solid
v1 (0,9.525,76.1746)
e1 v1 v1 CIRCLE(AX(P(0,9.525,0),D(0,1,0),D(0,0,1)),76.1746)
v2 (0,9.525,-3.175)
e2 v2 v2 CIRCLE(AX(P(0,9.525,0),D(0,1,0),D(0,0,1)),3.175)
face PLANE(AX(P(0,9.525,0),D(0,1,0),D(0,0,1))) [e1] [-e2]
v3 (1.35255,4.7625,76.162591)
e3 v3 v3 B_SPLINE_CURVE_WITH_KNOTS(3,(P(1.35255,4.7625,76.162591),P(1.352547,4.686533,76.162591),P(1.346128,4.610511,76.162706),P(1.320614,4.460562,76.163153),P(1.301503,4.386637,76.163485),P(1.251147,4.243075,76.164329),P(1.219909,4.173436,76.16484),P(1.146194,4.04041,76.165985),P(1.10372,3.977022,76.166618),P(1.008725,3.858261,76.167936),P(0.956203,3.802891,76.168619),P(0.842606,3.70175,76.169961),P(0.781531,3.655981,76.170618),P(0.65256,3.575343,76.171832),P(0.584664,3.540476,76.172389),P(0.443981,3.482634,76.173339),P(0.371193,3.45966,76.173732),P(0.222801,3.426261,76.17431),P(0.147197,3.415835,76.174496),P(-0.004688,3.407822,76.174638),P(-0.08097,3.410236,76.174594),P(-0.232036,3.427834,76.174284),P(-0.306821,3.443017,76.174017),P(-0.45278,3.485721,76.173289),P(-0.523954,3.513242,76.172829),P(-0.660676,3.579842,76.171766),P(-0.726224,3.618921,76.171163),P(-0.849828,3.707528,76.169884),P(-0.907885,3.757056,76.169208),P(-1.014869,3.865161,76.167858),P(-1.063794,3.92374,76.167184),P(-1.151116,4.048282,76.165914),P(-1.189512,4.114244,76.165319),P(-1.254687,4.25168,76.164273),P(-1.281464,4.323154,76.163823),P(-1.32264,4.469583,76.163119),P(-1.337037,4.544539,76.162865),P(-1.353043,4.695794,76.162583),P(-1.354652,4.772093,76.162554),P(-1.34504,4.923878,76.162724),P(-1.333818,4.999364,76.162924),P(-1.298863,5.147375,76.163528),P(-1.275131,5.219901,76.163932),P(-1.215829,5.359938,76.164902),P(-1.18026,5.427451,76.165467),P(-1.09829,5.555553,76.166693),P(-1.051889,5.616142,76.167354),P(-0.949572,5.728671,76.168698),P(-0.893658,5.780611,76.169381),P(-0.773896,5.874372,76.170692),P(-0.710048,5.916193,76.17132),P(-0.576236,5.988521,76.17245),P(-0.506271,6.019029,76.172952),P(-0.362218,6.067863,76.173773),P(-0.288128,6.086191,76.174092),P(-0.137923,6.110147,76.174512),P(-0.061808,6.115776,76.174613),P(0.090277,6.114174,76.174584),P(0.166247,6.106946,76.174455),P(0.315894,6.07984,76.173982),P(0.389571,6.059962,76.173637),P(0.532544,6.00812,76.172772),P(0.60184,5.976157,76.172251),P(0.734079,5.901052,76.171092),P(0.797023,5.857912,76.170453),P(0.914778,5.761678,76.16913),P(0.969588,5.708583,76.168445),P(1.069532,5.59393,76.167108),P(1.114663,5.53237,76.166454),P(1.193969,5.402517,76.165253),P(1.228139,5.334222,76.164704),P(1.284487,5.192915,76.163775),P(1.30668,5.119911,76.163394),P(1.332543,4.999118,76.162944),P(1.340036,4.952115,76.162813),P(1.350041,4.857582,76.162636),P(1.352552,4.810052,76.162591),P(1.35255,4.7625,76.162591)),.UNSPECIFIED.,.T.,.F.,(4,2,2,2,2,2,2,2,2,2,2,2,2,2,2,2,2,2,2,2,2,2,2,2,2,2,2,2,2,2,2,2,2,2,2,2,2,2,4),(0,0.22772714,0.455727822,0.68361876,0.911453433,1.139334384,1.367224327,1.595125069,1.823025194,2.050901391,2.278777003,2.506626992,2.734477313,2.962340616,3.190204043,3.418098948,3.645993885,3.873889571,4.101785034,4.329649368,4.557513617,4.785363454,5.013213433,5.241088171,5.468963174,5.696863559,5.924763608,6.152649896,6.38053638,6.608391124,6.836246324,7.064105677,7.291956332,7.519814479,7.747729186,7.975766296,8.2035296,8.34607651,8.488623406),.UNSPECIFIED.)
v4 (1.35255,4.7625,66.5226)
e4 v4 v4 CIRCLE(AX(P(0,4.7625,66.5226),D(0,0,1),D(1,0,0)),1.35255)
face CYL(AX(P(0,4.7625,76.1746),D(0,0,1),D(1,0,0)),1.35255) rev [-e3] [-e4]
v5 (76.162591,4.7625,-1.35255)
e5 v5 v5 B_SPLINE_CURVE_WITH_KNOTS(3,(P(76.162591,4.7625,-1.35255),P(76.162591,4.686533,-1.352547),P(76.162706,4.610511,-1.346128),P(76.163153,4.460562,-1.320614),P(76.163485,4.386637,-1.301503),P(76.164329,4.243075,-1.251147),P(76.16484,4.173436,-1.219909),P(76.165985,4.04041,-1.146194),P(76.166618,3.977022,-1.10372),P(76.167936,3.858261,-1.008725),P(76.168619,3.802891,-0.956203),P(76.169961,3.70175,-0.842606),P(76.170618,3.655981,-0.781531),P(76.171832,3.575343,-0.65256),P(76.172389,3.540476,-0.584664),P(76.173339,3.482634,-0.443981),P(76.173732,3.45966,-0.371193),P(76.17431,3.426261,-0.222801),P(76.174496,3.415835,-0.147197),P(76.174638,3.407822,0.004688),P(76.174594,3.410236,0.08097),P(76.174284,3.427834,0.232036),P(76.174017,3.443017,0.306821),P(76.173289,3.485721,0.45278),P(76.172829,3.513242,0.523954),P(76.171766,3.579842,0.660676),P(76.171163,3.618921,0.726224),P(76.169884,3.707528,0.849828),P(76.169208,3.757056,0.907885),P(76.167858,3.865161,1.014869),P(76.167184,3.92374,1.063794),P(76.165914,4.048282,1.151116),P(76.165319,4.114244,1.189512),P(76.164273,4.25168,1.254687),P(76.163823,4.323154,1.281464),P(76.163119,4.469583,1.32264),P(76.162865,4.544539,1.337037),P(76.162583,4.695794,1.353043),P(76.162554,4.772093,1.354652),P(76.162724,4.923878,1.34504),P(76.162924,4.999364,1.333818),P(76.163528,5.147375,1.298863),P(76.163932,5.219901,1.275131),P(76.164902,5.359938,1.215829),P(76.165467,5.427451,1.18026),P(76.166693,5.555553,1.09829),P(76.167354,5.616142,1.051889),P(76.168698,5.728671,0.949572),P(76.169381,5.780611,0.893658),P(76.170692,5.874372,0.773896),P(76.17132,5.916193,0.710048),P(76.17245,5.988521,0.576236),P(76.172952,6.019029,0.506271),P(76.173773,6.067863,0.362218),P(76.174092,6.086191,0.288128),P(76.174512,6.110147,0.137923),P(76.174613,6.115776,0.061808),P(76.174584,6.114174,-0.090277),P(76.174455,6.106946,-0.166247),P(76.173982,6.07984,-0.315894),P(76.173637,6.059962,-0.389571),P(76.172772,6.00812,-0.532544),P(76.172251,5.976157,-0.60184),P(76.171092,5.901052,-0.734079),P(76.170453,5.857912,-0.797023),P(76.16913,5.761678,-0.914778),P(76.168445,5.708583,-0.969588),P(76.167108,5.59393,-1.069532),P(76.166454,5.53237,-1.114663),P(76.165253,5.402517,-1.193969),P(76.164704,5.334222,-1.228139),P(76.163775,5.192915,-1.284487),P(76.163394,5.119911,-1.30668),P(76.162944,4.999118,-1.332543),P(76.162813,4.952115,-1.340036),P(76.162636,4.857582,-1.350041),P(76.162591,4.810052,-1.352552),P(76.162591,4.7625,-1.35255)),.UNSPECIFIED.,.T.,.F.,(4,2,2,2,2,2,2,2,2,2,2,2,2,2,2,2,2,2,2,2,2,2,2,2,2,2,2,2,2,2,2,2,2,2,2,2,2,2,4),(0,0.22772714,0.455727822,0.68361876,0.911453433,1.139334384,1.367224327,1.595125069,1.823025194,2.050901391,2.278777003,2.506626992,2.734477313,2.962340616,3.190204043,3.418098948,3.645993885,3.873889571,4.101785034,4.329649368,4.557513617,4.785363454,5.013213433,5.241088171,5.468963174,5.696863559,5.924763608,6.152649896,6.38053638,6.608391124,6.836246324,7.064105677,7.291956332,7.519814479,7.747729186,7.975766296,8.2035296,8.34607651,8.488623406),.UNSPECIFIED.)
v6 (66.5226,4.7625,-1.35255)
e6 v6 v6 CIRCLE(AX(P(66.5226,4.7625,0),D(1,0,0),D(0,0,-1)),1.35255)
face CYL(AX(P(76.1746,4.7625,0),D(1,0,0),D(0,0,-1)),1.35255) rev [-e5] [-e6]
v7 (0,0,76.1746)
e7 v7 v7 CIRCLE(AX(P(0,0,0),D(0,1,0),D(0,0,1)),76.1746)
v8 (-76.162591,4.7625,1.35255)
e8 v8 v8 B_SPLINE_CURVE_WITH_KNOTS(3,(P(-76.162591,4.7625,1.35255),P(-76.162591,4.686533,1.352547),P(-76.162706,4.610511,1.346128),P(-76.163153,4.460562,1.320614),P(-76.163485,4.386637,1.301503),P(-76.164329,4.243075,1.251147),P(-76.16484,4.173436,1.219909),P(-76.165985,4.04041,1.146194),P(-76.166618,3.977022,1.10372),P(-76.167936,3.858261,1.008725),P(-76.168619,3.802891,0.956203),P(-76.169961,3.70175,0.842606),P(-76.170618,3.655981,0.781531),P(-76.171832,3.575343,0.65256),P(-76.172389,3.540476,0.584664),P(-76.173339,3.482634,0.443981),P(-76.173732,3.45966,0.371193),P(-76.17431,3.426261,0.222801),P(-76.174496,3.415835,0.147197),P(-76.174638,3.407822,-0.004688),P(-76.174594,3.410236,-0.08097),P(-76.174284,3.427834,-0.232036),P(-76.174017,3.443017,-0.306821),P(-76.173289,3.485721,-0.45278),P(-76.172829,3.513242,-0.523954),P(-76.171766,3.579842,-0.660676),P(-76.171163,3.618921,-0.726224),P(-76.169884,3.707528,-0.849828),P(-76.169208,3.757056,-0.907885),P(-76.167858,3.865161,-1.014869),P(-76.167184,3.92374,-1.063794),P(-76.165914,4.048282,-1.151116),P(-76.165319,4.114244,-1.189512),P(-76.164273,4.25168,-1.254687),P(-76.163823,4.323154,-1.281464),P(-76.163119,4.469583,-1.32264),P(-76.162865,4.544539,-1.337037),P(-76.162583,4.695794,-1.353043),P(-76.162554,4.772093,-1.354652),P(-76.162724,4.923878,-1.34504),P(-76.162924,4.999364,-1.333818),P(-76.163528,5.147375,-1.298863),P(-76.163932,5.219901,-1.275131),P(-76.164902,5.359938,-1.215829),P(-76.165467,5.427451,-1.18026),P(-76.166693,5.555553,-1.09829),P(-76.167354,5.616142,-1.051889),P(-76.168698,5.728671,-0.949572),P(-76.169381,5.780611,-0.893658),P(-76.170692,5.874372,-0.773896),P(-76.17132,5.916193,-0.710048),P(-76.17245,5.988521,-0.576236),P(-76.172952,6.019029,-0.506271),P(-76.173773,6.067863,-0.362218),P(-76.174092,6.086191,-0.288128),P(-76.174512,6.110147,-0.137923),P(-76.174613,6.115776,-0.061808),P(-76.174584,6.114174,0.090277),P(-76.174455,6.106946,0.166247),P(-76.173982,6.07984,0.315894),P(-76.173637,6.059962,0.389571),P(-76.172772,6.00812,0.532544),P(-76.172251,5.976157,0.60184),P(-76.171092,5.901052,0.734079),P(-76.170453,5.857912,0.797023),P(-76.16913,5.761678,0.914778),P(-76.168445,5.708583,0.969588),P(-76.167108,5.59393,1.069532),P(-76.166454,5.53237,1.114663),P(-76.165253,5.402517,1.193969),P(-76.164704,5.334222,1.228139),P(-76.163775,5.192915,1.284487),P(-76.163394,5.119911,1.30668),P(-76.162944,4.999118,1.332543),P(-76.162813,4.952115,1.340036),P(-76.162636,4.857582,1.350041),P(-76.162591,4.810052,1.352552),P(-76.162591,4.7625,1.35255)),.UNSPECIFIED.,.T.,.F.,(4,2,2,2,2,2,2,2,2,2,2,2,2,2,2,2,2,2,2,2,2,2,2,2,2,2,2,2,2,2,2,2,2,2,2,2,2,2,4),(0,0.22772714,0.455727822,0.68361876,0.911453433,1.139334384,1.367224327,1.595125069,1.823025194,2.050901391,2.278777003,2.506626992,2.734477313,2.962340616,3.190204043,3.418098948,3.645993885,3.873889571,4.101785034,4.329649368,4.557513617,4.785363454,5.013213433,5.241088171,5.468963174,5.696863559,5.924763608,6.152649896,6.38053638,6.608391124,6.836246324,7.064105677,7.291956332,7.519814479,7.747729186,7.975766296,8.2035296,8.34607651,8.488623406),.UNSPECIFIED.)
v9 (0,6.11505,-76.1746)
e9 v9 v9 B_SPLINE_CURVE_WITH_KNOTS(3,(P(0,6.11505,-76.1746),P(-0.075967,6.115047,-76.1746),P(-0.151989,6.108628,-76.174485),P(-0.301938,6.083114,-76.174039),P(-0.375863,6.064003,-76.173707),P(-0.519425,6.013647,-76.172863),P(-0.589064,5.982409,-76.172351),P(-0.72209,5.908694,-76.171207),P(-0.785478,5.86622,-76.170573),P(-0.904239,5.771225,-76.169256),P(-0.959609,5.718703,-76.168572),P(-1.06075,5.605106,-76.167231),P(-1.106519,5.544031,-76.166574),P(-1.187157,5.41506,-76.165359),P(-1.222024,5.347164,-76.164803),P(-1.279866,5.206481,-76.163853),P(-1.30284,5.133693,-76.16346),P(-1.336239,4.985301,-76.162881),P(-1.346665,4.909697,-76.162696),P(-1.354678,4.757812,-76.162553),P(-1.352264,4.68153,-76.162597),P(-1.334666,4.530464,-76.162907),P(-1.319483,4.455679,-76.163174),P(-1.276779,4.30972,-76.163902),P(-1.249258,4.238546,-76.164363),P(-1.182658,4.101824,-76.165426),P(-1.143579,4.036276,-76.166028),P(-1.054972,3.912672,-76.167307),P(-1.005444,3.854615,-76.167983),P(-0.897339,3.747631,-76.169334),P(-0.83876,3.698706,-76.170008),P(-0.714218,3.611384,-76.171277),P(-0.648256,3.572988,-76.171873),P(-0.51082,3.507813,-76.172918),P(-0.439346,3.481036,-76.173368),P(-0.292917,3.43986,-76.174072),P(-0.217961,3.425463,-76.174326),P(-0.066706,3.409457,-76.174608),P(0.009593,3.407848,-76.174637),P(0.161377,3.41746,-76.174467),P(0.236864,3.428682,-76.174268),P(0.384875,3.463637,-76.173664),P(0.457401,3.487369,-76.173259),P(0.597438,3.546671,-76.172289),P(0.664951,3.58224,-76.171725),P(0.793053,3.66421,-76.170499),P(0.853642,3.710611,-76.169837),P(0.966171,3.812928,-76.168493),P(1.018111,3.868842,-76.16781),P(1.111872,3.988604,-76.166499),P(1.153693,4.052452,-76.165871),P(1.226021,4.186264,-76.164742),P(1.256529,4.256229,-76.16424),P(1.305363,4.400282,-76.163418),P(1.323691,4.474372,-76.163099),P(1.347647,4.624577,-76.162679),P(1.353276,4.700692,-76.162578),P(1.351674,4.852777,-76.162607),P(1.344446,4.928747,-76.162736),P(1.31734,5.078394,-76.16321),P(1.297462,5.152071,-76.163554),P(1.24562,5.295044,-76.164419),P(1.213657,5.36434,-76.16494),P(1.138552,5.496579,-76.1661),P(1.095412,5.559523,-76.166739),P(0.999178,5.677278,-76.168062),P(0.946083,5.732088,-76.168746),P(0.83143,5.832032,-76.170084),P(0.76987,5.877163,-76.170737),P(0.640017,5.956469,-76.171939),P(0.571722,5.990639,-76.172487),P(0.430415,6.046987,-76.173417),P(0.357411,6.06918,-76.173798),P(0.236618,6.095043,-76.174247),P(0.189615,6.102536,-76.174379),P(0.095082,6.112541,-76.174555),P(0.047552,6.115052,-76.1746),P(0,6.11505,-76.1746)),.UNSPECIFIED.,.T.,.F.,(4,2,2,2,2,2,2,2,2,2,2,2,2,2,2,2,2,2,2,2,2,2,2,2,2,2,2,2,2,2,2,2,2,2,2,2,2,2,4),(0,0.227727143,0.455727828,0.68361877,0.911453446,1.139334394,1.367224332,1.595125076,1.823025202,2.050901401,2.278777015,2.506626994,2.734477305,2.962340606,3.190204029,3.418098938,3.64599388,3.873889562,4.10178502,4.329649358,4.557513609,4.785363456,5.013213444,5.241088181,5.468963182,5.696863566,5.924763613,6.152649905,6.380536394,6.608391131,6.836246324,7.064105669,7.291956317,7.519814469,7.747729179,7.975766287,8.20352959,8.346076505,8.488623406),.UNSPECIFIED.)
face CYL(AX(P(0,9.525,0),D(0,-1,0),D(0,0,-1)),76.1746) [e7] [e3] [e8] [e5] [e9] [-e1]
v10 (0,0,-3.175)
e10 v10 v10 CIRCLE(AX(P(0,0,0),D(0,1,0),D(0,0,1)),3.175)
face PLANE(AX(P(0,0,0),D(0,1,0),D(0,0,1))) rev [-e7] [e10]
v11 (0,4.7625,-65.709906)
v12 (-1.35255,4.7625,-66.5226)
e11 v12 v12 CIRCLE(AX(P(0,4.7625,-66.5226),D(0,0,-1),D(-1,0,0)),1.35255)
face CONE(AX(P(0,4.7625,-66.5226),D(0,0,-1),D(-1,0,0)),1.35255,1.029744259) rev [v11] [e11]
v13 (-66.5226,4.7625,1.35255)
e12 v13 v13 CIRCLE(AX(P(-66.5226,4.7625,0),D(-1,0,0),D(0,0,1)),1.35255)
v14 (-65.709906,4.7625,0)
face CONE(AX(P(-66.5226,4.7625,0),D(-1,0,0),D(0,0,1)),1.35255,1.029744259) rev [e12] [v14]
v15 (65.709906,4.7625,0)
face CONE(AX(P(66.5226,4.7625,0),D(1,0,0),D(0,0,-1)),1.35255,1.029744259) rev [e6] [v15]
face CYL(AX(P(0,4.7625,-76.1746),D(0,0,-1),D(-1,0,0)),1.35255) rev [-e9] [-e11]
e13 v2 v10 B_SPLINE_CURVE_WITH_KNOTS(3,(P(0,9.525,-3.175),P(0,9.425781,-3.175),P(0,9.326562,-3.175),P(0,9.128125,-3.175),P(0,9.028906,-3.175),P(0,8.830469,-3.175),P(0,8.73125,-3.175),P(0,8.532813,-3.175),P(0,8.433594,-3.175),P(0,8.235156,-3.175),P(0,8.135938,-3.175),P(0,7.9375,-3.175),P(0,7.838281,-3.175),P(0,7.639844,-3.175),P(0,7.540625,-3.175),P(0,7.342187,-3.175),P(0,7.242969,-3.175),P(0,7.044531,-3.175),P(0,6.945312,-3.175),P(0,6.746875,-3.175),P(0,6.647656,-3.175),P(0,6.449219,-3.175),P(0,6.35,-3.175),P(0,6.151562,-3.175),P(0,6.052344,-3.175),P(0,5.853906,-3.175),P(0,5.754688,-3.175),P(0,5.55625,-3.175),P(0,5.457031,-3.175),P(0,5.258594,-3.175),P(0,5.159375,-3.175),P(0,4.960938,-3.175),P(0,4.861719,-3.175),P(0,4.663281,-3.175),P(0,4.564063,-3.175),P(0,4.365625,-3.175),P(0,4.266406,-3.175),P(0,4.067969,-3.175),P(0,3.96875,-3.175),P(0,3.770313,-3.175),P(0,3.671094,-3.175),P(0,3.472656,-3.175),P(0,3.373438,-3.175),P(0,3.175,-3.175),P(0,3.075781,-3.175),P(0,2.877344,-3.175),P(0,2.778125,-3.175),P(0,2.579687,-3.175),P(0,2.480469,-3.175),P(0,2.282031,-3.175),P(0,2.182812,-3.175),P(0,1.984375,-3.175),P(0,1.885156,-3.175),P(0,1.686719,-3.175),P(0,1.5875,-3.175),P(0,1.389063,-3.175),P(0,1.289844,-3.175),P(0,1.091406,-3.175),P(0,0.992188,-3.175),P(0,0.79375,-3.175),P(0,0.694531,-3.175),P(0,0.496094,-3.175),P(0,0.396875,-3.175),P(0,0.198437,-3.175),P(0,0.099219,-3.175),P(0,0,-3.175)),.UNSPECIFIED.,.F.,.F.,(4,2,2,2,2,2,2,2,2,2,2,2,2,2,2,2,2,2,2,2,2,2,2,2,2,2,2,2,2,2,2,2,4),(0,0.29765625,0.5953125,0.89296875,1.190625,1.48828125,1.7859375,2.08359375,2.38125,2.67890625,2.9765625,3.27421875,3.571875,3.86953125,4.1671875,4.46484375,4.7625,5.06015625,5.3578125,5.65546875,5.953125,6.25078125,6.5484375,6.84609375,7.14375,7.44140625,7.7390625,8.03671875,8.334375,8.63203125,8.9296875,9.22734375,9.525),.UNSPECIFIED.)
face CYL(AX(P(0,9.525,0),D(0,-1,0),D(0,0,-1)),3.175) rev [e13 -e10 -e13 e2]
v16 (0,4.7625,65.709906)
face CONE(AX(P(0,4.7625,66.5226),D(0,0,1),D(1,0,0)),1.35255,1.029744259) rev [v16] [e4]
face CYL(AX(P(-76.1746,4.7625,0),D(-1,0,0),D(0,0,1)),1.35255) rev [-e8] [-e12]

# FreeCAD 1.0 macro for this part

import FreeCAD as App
import Part
import Sketcher
from FreeCAD import Vector
Q = App.Units.Quantity

doc = App.newDocument("Part")
body = doc.addObject("PartDesign::Body", "Body")

# Sketch on XZ plane
sketch1 = body.newObject("Sketcher::SketchObject", "Sketch")
sketch1.AttachmentSupport = (doc.getObject("XZ_Plane"), [""])
sketch1.MapMode = "FlatFace"
sketch1.addGeometry([
    Part.Circle(Vector(0, 0, 0), Vector(0, 0, 1), 76.2),
    Part.Circle(Vector(0, 0, 0), Vector(0, 0, 1), 3.2),
], False)
sketch1.addConstraint([
    Sketcher.Constraint("Coincident", 0, 3, -1, 1),
    Sketcher.Constraint("Coincident", 1, 3, -1, 1),
    Sketcher.Constraint("Diameter", 1, Q("0.25 in")),
    Sketcher.Constraint("Diameter", 0, Q("5.998 in")),
])
pad1 = body.newObject("PartDesign::Pad", "Pad")
pad1.Profile = sketch1
pad1.Length = Q("0.375 in")
pad1.Reversed = True

# Sketch on YZ plane
sketch2 = body.newObject("Sketcher::SketchObject", "Sketch001")
sketch2.AttachmentSupport = (doc.getObject("YZ_Plane"), [""])
sketch2.MapMode = "FlatFace"
sketch2.addGeometry([
    Part.LineSegment(Vector(4.8, -65.7, 0), Vector(4.8, -76.2, 0)),
    Part.LineSegment(Vector(4.8, -76.2, 0), Vector(6.1, -76.2, 0)),
    Part.LineSegment(Vector(6.1, -76.2, 0), Vector(6.1, -66.5, 0)),
    Part.LineSegment(Vector(6.1, -66.5, 0), Vector(4.8, -65.7, 0)),
], False)
sketch2.addGeometry(Part.LineSegment(Vector(4.8, -76.2, 0), Vector(4.8, -65.7, 0)), True)  # axis
sketch2.addConstraint([
    Sketcher.Constraint("Coincident", 0, 2, 1, 1),
    Sketcher.Constraint("Coincident", 1, 2, 2, 1),
    Sketcher.Constraint("Coincident", 2, 2, 3, 1),
    Sketcher.Constraint("Coincident", 3, 2, 0, 1),
    Sketcher.Constraint("Vertical", 0),
    Sketcher.Constraint("Horizontal", 1),
    Sketcher.Constraint("Vertical", 2),
    Sketcher.Constraint("Vertical", 4),
    Sketcher.Constraint("Coincident", 4, 1, 0, 2),
    Sketcher.Constraint("Equal", 0, 4),
    Sketcher.Constraint("Angle", 3, Q("149 deg")),
    Sketcher.Constraint("DistanceY", 2, 1, 2, 2, Q("0.38 in")),
    Sketcher.Constraint("DistanceX", -1, 1, 0, 2, Q("0.1875 in")),
    Sketcher.Constraint("DistanceY", 0, 2, -1, 1, Q("2.999 in")),
    Sketcher.Constraint("DistanceX", 1, 1, 1, 2, Q("1.35255 mm")),
])
groove = body.newObject("PartDesign::Groove", "Groove")
groove.Profile = sketch2
groove.ReferenceAxis = (sketch2, ["Axis0"])
groove.Angle = 360
doc.recompute()

polarpattern = body.newObject("PartDesign::PolarPattern", "PolarPattern")
polarpattern.Originals = [groove]
polarpattern.Axis = (doc.getObject("Y_Axis"), [""])
polarpattern.Angle = 360
polarpattern.Occurrences = 4
body.Tip = polarpattern

doc.recompute()
